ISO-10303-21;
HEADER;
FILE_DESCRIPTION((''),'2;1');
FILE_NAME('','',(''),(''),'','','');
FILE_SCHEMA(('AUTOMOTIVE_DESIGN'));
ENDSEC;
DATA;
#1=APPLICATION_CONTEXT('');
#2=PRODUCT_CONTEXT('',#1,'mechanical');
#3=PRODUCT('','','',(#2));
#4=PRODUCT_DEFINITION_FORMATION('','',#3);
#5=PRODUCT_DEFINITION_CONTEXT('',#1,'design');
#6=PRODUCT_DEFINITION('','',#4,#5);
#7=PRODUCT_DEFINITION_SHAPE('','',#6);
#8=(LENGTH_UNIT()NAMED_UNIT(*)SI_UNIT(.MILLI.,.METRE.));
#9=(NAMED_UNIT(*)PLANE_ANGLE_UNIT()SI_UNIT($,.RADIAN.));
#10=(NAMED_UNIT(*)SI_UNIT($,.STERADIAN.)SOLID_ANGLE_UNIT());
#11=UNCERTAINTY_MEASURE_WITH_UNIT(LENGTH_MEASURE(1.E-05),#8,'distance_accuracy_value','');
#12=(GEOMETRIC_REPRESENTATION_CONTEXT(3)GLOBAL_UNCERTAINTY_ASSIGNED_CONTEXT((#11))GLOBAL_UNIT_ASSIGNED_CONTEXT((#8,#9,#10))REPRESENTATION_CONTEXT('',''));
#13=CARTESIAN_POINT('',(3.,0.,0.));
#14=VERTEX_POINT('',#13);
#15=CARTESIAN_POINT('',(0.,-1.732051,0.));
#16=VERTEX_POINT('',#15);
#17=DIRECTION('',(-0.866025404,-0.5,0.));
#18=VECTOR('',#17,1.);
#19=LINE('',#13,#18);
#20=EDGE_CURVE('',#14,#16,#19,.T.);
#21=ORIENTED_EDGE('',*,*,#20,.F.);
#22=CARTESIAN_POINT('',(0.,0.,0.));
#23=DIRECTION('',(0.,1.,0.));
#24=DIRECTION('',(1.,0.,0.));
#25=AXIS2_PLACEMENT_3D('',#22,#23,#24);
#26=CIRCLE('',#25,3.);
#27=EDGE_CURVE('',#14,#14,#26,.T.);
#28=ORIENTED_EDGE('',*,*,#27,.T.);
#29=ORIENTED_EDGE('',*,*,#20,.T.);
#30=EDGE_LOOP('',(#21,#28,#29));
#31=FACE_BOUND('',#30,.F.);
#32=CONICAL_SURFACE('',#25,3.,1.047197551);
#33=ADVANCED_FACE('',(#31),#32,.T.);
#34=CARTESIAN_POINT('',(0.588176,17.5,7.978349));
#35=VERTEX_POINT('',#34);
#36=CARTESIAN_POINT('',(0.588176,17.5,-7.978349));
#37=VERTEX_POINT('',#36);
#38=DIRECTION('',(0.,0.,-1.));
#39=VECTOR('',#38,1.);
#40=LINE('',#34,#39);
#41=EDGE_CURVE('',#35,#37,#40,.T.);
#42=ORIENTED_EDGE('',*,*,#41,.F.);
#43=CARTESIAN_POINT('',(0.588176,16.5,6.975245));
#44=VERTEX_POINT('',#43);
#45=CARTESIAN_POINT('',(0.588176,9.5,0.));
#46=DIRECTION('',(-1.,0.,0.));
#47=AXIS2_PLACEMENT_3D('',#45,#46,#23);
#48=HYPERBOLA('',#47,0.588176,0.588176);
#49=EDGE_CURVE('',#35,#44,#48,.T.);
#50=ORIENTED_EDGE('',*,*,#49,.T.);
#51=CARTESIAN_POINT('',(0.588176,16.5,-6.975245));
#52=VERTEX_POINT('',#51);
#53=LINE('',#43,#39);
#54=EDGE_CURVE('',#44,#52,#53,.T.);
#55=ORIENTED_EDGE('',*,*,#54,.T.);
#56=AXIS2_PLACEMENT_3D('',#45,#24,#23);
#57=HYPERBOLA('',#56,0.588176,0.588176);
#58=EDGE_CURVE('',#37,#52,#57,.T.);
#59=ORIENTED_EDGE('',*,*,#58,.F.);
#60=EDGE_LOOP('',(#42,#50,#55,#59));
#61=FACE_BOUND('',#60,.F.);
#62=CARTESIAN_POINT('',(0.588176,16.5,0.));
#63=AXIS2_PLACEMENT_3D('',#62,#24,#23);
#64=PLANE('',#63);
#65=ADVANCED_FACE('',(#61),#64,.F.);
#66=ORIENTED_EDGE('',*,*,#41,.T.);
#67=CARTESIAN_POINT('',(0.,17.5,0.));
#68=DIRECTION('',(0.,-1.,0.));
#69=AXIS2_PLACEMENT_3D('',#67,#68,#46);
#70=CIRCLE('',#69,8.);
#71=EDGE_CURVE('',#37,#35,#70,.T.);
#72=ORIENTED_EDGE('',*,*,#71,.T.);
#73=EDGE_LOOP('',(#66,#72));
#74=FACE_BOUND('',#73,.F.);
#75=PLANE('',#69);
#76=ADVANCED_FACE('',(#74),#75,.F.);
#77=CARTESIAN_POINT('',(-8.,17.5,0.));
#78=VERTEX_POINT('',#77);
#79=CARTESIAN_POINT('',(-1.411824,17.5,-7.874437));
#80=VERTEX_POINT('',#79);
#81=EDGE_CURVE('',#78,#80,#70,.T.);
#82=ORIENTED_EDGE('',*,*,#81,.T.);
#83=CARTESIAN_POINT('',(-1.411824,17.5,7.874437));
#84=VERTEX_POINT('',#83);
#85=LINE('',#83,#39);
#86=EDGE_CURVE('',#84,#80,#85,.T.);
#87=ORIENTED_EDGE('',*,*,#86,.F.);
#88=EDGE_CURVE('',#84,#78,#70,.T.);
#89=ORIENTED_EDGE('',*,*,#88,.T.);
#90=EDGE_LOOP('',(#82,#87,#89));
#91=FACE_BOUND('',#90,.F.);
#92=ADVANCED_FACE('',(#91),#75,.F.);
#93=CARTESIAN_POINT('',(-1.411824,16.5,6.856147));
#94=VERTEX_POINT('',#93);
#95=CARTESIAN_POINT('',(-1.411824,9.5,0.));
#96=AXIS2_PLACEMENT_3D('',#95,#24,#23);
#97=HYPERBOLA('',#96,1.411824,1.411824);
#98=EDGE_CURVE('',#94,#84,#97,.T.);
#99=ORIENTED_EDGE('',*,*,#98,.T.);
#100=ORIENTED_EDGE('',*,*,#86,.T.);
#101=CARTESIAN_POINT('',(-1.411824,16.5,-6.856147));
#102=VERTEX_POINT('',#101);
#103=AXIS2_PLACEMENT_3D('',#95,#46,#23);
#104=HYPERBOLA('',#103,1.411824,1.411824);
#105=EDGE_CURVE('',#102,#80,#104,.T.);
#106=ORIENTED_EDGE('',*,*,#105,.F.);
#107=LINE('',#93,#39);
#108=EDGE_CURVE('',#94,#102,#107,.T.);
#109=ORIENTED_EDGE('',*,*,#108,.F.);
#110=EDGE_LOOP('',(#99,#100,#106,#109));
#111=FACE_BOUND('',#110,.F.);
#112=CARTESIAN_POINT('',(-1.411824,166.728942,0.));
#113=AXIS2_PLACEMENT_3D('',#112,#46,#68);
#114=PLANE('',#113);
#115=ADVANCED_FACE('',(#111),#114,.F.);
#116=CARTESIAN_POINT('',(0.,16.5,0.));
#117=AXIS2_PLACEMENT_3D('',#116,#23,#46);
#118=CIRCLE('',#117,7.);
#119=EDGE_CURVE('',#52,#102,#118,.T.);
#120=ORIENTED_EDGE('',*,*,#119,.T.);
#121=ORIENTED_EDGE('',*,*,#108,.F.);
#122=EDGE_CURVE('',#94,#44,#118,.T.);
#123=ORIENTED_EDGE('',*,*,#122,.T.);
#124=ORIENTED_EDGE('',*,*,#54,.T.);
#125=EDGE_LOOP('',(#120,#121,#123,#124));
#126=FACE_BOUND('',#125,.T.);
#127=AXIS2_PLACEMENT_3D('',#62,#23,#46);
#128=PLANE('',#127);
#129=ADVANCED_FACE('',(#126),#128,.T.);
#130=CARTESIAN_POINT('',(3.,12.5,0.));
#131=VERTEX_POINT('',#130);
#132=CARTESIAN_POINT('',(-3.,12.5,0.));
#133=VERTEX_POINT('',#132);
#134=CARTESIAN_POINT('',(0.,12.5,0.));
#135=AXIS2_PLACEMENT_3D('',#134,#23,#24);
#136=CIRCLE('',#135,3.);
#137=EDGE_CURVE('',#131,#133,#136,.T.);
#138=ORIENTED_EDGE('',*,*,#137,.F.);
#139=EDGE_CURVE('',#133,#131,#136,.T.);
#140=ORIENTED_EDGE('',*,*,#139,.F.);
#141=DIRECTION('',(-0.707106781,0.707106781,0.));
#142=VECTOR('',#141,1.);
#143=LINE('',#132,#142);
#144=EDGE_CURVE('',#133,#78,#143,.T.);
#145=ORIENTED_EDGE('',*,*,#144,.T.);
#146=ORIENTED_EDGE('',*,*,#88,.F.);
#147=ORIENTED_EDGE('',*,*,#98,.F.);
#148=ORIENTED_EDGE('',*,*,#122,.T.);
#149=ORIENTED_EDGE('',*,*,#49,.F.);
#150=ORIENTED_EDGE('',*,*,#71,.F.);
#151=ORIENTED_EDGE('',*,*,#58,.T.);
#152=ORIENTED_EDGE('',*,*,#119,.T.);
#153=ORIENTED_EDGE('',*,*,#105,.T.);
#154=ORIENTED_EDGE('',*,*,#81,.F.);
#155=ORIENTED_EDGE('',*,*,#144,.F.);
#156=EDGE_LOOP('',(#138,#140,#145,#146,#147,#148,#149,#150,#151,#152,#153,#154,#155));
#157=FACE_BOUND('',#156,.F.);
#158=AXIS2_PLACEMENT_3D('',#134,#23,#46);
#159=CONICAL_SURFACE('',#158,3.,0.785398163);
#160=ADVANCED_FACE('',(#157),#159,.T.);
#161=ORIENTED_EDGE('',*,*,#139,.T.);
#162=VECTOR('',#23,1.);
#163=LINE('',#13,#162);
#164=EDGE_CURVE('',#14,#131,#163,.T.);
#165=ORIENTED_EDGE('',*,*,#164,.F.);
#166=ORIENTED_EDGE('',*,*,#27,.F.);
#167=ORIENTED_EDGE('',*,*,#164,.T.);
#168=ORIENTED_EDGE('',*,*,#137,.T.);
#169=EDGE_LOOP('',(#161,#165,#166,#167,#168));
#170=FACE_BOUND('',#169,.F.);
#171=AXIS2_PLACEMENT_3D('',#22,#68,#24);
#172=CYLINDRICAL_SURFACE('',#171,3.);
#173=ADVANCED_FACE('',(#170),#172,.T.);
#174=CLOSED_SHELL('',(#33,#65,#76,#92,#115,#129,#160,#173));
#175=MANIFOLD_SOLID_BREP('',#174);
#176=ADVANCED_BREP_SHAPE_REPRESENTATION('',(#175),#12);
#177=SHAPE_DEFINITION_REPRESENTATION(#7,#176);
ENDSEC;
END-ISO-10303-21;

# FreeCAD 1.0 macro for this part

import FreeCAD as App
import Part
import Sketcher
Q = App.Units.Quantity

doc = App.newDocument("Part")
body = doc.addObject("PartDesign::Body", "Body")

# Sketch on XZ plane
sketch1 = body.newObject("Sketcher::SketchObject", "Sketch")
sketch1.AttachmentSupport = (doc.getObject("XZ_Plane"), [""])
sketch1.MapMode = "FlatFace"
sketch1.addGeometry(Part.Circle(App.Vector(0, 0, 0), App.Vector(0, 0, 1), 3), False)
sketch1.addConstraint(Sketcher.Constraint("Coincident", 0, 3, -1, 1))
sketch1.addConstraint(Sketcher.Constraint("Diameter", 0, Q("6 mm")))
pad1 = body.newObject("PartDesign::Pad", "Pad")
pad1.Profile = sketch1
pad1.Length = 12.5
pad1.Reversed = True

# Sketch on XY plane
sketch2 = body.newObject("Sketcher::SketchObject", "Sketch001")
sketch2.AttachmentSupport = (doc.getObject("XY_Plane"), [""])
sketch2.MapMode = "FlatFace"
sketch2.addGeometry(Part.LineSegment(App.Vector(-8, 17.5, 0), App.Vector(-3, 12.5, 0)), False)
sketch2.addGeometry(Part.LineSegment(App.Vector(-3, 12.5, 0), App.Vector(0, 12.5, 0)), False)
sketch2.addGeometry(Part.LineSegment(App.Vector(0, 12.5, 0), App.Vector(0, 17.5, 0)), False)
sketch2.addGeometry(Part.LineSegment(App.Vector(0, 17.5, 0), App.Vector(-8, 17.5, 0)), False)
sketch2.addConstraint(Sketcher.Constraint("Coincident", 0, 2, 1, 1))
sketch2.addConstraint(Sketcher.Constraint("Coincident", 1, 2, 2, 1))
sketch2.addConstraint(Sketcher.Constraint("Coincident", 2, 2, 3, 1))
sketch2.addConstraint(Sketcher.Constraint("Coincident", 3, 2, 0, 1))
sketch2.addConstraint(Sketcher.Constraint("Horizontal", 1))
sketch2.addConstraint(Sketcher.Constraint("Vertical", 2))
sketch2.addConstraint(Sketcher.Constraint("Horizontal", 3))
sketch2.addConstraint(Sketcher.Constraint("PointOnObject", 1, 2, -2))
sketch2.addConstraint(Sketcher.Constraint("DistanceX", 1, 1, 1, 2, Q("3 mm")))
sketch2.addConstraint(Sketcher.Constraint("DistanceX", 3, 2, 3, 1, Q("8 mm")))
sketch2.addConstraint(Sketcher.Constraint("DistanceY", 2, 1, 2, 2, Q("5 mm")))
sketch2.addConstraint(Sketcher.Constraint("DistanceY", -1, 1, 0, 2, Q("12.5 mm")))
revolution = body.newObject("PartDesign::Revolution", "Revolution")
revolution.Profile = sketch2
revolution.ReferenceAxis = (sketch2, ["V_Axis"])
revolution.Angle = 360

# Sketch on XY plane
sketch3 = body.newObject("Sketcher::SketchObject", "Sketch002")
sketch3.AttachmentSupport = (doc.getObject("XY_Plane"), [""])
sketch3.MapMode = "FlatFace"
sketch3.addGeometry(Part.LineSegment(App.Vector(0.6, 16.5, 0), App.Vector(0.6, 166.7, 0)), False)
sketch3.addGeometry(Part.LineSegment(App.Vector(0.6, 166.7, 0), App.Vector(-1.4, 166.7, 0)), False)
sketch3.addGeometry(Part.LineSegment(App.Vector(-1.4, 166.7, 0), App.Vector(-1.4, 16.5, 0)), False)
sketch3.addGeometry(Part.LineSegment(App.Vector(-1.4, 16.5, 0), App.Vector(0.6, 16.5, 0)), False)
sketch3.addConstraint(Sketcher.Constraint("Coincident", 0, 2, 1, 1))
sketch3.addConstraint(Sketcher.Constraint("Coincident", 1, 2, 2, 1))
sketch3.addConstraint(Sketcher.Constraint("Coincident", 2, 2, 3, 1))
sketch3.addConstraint(Sketcher.Constraint("Coincident", 3, 2, 0, 1))
sketch3.addConstraint(Sketcher.Constraint("Vertical", 0))
sketch3.addConstraint(Sketcher.Constraint("Horizontal", 1))
sketch3.addConstraint(Sketcher.Constraint("Vertical", 2))
sketch3.addConstraint(Sketcher.Constraint("Horizontal", 3))
sketch3.addConstraint(Sketcher.Constraint("DistanceX", 1, 2, 1, 1, Q("2 mm")))
sketch3.addConstraint(Sketcher.Constraint("DistanceY", -1, 1, 2, 2, Q("16.5 mm")))
sketch3.addConstraint(Sketcher.Constraint("DistanceY", 0, 1, 0, 2, Q("150.228942 mm")))
sketch3.addConstraint(Sketcher.Constraint("DistanceX", -1, 1, 0, 2, Q("0.588176 mm")))
pocket1 = body.newObject("PartDesign::Pocket", "Pocket")
pocket1.Profile = sketch3
pocket1.Type = "ThroughAll"
pocket1.Midplane = True

# Sketch on XY plane
sketch4 = body.newObject("Sketcher::SketchObject", "Sketch003")
sketch4.AttachmentSupport = (doc.getObject("XY_Plane"), [""])
sketch4.MapMode = "FlatFace"
sketch4.addGeometry(Part.LineSegment(App.Vector(0, -1.7, 0), App.Vector(3, 0, 0)), False)
sketch4.addGeometry(Part.LineSegment(App.Vector(3, 0, 0), App.Vector(0, 0, 0)), False)
sketch4.addGeometry(Part.LineSegment(App.Vector(0, 0, 0), App.Vector(0, -1.7, 0)), False)
sketch4.addConstraint(Sketcher.Constraint("Coincident", 0, 2, 1, 1))
sketch4.addConstraint(Sketcher.Constraint("Coincident", 1, 2, 2, 1))
sketch4.addConstraint(Sketcher.Constraint("Coincident", 2, 2, 0, 1))
sketch4.addConstraint(Sketcher.Constraint("Horizontal", 1))
sketch4.addConstraint(Sketcher.Constraint("Vertical", 2))
sketch4.addConstraint(Sketcher.Constraint("Coincident", 1, 2, -1, 1))
sketch4.addConstraint(Sketcher.Constraint("DistanceX", 1, 2, 1, 1, Q("3 mm")))
sketch4.addConstraint(Sketcher.Constraint("Angle", 0, Q("30 deg")))
revolution2 = body.newObject("PartDesign::Revolution", "Revolution001")
revolution2.Profile = sketch4
revolution2.ReferenceAxis = (sketch4, ["V_Axis"])
revolution2.Angle = 360

doc.recompute()
